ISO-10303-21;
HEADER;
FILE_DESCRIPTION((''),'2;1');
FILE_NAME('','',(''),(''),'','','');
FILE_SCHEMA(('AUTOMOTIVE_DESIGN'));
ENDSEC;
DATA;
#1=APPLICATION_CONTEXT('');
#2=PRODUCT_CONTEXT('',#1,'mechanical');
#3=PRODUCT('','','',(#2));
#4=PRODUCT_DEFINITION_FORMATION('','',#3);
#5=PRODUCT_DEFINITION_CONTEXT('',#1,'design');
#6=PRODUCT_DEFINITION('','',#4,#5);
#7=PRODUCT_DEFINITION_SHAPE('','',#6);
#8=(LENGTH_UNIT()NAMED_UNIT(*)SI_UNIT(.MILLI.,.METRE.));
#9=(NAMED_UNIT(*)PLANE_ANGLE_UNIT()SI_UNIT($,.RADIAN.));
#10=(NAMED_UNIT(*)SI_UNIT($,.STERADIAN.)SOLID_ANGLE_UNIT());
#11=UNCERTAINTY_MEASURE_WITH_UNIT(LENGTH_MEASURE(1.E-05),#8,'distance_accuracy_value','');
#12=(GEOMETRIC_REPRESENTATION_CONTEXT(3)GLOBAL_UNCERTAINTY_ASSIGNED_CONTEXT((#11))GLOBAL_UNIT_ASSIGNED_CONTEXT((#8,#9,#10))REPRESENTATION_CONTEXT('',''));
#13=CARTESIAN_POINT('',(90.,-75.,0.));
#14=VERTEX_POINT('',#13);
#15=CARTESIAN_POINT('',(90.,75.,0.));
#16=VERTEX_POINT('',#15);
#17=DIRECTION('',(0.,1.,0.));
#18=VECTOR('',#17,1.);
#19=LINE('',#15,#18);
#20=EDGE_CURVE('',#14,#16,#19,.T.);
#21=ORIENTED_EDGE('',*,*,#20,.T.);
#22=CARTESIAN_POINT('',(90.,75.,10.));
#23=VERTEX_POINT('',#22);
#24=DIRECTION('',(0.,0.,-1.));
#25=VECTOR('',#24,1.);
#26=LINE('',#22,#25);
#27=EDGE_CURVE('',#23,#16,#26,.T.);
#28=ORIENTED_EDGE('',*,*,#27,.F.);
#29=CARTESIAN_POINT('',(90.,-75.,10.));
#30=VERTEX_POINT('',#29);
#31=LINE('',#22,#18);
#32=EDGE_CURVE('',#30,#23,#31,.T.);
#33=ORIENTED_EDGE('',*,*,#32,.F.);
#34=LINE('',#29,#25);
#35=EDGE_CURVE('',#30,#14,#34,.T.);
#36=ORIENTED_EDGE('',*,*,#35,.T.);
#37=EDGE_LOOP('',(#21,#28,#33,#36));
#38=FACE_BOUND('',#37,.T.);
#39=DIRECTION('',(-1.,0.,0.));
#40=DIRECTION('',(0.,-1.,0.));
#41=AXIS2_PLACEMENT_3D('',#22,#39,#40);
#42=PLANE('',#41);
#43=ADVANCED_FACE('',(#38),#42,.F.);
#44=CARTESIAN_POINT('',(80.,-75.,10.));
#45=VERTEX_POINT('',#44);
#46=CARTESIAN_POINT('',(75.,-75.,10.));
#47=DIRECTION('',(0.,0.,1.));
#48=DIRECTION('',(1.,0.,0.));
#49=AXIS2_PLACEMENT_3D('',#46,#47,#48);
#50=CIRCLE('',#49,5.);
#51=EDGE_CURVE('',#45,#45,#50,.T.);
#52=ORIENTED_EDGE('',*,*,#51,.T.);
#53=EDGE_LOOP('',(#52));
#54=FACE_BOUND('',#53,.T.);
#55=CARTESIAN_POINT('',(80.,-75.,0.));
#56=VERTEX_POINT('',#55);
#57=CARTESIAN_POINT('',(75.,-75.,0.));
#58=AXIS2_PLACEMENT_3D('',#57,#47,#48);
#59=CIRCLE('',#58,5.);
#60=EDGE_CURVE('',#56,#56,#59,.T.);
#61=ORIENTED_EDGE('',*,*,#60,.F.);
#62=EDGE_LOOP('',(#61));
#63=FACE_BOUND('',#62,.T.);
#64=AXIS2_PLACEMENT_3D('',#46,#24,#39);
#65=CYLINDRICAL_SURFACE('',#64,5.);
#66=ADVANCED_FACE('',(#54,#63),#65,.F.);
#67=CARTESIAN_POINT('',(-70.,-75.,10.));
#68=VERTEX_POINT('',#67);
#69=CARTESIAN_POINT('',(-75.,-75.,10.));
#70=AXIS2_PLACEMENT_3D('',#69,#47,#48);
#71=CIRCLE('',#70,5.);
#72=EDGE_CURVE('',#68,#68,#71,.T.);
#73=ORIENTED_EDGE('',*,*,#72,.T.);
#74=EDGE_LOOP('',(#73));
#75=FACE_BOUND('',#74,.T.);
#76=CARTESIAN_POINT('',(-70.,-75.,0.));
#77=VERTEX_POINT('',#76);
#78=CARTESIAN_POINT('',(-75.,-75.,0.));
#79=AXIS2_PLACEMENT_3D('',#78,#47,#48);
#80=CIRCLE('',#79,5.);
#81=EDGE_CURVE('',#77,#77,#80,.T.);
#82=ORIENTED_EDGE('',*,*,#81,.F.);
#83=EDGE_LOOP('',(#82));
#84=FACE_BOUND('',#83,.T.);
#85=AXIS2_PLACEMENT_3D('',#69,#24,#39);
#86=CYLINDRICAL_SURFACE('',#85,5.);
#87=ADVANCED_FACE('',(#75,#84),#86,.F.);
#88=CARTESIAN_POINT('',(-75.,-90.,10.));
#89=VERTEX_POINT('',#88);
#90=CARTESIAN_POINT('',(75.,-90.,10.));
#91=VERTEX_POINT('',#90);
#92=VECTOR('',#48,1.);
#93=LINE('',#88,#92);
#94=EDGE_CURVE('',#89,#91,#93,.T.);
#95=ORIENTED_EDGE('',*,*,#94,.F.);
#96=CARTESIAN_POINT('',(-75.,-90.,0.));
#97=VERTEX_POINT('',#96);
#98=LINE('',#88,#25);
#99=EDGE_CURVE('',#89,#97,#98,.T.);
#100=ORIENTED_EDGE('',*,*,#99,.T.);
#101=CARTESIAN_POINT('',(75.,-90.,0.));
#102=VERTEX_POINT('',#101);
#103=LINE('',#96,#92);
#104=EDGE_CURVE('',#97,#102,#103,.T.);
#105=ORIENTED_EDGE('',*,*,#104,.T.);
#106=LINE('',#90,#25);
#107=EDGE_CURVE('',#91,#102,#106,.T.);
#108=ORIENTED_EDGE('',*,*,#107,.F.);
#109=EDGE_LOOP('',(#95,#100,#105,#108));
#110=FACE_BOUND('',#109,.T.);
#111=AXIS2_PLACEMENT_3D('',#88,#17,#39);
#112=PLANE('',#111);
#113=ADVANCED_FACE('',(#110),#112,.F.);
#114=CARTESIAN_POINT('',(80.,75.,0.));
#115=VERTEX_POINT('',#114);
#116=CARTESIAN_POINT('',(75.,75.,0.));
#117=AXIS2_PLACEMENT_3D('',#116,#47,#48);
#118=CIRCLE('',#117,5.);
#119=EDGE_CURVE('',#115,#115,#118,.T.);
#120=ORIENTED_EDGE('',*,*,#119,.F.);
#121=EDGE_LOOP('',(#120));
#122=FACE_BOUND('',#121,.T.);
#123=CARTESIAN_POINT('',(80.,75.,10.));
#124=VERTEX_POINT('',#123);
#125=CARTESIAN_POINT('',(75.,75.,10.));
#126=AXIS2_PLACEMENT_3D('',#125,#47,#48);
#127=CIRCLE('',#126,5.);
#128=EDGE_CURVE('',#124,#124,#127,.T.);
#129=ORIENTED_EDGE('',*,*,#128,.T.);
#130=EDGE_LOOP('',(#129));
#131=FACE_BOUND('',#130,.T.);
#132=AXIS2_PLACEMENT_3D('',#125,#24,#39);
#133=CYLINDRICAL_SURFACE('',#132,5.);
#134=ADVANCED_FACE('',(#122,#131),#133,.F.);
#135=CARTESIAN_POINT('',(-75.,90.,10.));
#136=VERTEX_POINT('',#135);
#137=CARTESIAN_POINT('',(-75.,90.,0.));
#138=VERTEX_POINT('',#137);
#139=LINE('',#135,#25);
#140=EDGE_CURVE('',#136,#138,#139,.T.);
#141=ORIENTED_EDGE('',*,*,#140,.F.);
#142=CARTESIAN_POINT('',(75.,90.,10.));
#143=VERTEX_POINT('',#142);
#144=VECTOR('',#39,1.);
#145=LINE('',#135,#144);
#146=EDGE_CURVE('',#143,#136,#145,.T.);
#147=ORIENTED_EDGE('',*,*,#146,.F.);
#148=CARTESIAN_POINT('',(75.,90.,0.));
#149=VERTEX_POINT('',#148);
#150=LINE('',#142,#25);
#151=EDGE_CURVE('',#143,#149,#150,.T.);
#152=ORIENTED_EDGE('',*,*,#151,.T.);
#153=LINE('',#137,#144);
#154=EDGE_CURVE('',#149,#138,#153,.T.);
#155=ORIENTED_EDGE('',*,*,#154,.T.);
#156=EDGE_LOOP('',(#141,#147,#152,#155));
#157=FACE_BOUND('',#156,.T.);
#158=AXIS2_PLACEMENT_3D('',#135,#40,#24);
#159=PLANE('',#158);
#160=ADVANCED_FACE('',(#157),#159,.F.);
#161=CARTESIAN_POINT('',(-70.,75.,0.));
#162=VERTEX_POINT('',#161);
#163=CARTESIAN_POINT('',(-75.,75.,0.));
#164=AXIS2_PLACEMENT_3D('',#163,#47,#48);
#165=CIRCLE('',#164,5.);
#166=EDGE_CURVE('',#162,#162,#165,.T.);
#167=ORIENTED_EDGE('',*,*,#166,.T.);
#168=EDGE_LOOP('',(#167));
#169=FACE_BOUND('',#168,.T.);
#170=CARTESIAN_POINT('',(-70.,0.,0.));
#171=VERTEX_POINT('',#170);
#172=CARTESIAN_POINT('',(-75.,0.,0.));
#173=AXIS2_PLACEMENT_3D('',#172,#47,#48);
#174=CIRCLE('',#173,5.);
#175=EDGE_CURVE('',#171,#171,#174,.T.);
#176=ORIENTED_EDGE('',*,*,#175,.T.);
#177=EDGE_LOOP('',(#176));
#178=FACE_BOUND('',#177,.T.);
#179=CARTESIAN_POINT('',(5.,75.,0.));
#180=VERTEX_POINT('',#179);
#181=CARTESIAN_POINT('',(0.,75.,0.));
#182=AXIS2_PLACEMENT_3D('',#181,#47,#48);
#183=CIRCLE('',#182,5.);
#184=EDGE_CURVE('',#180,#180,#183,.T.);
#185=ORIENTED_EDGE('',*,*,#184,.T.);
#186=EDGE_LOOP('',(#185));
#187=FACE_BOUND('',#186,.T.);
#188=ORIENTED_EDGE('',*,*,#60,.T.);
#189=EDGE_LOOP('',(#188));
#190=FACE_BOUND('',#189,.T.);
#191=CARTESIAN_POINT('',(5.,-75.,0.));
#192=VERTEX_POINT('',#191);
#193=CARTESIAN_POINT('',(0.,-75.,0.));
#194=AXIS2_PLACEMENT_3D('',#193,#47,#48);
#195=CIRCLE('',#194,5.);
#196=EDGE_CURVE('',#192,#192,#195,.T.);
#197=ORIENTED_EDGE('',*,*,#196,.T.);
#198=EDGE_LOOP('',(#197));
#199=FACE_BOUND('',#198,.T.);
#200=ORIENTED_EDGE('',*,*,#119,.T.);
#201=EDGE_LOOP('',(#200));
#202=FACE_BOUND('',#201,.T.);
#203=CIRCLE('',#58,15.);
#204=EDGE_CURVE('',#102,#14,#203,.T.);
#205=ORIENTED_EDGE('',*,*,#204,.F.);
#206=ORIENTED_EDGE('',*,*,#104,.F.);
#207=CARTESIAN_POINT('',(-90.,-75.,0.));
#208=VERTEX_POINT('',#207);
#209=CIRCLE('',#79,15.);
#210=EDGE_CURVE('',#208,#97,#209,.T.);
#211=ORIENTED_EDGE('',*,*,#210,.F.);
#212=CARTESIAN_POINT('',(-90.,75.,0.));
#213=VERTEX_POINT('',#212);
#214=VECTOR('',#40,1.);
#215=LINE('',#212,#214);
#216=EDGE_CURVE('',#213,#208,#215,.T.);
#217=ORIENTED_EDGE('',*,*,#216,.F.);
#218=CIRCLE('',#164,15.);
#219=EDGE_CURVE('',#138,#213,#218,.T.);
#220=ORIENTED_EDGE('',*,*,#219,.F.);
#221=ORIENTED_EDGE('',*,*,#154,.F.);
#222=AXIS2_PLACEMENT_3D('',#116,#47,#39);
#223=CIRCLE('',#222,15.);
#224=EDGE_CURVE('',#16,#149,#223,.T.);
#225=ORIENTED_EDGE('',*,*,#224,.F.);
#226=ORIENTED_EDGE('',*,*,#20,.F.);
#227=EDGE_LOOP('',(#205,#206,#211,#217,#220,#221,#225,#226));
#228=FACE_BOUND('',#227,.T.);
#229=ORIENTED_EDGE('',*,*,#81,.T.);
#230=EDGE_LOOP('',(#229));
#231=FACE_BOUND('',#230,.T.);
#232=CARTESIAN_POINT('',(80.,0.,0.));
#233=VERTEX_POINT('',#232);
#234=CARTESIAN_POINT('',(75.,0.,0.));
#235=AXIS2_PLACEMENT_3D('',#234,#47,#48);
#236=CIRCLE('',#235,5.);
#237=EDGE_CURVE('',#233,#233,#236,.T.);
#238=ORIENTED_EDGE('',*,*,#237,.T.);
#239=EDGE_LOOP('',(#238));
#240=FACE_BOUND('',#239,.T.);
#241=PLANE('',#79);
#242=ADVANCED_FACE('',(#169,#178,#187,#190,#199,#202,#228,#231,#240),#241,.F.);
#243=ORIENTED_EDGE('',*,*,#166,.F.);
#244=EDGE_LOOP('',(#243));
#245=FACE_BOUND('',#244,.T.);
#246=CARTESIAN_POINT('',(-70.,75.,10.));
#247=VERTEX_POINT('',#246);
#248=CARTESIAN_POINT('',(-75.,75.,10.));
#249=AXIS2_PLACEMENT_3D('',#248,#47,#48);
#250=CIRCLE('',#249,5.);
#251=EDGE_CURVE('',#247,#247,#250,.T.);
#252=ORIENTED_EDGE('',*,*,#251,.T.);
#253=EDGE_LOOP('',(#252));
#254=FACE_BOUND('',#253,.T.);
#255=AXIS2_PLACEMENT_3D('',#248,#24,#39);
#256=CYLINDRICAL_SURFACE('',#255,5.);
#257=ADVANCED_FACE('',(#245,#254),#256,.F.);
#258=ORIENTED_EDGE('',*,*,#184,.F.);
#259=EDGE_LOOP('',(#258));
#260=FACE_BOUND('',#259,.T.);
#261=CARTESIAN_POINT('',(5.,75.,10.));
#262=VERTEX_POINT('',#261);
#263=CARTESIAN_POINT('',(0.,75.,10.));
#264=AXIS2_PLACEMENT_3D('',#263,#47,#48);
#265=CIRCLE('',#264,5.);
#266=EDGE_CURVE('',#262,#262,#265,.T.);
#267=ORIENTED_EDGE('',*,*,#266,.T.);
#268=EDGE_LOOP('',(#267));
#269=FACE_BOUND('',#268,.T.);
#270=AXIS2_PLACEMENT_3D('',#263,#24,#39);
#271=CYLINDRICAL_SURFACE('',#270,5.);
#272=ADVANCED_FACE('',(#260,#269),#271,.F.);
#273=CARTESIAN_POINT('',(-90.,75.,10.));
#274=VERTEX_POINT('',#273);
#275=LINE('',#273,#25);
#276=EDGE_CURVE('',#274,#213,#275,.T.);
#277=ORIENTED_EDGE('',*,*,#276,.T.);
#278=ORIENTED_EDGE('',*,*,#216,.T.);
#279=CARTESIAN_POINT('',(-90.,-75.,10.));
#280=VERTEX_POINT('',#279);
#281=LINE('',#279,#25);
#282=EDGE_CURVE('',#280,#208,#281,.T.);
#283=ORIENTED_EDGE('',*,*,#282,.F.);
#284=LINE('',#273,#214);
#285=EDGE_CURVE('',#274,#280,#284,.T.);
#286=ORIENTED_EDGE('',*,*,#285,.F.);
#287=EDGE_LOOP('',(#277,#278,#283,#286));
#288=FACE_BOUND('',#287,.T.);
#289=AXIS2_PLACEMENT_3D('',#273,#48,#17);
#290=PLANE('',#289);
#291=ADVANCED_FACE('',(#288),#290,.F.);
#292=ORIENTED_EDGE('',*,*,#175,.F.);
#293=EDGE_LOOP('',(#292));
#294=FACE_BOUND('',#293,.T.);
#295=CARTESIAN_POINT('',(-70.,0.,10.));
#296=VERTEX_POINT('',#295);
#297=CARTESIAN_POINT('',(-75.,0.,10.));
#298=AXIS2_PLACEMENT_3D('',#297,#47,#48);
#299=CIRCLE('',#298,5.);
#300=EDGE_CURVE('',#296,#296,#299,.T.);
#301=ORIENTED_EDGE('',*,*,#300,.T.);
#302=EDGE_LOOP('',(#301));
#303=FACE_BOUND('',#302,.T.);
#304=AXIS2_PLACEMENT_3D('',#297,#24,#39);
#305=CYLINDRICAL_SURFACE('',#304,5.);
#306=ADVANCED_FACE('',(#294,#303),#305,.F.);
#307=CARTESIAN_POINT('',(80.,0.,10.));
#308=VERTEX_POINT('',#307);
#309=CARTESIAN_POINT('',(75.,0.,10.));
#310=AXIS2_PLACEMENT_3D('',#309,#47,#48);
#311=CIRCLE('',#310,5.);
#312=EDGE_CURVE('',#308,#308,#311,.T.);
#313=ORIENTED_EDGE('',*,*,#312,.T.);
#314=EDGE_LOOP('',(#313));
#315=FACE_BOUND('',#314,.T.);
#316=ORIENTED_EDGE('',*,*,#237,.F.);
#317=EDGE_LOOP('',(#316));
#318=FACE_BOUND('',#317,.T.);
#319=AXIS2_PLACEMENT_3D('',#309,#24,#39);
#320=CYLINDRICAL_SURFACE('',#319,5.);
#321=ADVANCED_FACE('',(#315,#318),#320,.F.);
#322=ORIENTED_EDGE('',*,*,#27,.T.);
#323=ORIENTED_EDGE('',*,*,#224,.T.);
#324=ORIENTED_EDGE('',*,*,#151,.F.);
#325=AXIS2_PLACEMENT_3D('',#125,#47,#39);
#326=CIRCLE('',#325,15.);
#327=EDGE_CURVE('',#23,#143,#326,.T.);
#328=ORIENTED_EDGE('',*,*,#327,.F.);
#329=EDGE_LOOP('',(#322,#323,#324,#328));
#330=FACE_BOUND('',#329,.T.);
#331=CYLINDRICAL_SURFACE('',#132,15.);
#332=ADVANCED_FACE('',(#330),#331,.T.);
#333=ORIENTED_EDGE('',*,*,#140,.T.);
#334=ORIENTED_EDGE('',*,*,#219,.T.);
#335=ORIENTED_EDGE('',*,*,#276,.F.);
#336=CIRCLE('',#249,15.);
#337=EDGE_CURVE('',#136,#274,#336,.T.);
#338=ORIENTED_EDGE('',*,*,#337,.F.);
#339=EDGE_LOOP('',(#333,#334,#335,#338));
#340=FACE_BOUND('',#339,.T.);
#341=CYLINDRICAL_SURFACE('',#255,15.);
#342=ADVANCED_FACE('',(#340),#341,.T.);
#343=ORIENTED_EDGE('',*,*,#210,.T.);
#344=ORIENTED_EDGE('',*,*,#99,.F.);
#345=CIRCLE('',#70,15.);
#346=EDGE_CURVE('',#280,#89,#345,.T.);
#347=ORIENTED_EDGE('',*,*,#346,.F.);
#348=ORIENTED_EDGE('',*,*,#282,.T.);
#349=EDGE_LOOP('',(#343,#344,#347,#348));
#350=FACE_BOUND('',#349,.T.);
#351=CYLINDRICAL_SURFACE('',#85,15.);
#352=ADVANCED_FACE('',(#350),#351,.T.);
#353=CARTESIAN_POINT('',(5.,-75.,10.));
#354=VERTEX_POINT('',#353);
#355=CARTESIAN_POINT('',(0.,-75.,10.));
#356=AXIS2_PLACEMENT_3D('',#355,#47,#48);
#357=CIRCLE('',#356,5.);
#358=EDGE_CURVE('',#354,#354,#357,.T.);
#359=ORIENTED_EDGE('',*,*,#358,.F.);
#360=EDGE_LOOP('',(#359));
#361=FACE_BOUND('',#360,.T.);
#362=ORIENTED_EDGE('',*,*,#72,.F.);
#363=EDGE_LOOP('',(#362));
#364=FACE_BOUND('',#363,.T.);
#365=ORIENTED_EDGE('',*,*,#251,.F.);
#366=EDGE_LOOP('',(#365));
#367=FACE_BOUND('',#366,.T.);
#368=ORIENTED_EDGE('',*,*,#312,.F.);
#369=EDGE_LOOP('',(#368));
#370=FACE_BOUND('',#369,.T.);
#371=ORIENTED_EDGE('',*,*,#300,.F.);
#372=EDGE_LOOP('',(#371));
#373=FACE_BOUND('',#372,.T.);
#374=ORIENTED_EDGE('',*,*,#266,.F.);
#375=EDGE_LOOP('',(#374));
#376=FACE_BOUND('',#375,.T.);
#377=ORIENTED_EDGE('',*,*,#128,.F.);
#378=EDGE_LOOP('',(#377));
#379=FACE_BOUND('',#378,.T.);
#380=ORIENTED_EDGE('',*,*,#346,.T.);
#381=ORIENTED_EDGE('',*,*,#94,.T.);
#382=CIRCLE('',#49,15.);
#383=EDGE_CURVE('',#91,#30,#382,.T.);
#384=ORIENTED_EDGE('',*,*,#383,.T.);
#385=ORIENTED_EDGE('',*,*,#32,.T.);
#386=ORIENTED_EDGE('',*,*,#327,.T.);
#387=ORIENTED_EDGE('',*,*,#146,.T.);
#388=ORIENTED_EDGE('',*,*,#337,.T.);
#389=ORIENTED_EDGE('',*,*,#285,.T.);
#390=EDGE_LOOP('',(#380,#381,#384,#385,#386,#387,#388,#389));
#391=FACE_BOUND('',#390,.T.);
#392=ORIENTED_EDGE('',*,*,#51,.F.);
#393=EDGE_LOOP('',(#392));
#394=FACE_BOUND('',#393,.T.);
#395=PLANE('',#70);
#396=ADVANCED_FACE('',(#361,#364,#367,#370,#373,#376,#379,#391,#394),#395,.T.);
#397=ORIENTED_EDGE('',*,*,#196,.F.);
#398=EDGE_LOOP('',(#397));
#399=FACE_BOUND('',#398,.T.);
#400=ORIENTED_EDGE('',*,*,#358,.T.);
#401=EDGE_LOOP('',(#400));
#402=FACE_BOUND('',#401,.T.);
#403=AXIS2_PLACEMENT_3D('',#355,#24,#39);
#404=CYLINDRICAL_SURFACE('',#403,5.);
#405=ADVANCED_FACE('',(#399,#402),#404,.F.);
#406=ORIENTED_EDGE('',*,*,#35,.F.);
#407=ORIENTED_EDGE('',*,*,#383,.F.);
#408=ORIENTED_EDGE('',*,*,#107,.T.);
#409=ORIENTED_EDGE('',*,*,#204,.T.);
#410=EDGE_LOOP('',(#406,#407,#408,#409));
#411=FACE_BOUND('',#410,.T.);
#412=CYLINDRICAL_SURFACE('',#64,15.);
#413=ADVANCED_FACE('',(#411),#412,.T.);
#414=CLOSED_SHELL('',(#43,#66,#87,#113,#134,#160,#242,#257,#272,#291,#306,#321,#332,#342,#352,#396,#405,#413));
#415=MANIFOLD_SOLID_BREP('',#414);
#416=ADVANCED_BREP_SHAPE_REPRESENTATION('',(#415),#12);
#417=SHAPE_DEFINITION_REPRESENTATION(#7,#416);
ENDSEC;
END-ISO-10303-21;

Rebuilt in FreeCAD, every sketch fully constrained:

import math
import FreeCAD as App
import Part
import Sketcher
from FreeCAD import Vector

doc = App.newDocument("Part")
body = doc.addObject("PartDesign::Body", "Body")

sketch1 = doc.addObject("Sketcher::SketchObject", "Sketch")
body.addObject(sketch1)
sketch1.AttachmentSupport = (doc.XY_Plane, [""])
sketch1.MapMode = "FlatFace"
sketch1.addGeometry(Part.LineSegment(Vector(75, 90, 0), Vector(-75, 90, 0)), False)
sketch1.addGeometry(Part.ArcOfCircle(Part.Circle(Vector(-75, 75, 0), Vector(0, 0, 1), 15), math.radians(90), math.radians(180)), False)
sketch1.addGeometry(Part.LineSegment(Vector(-90, 75, 0), Vector(-90, -75, 0)), False)
sketch1.addGeometry(Part.ArcOfCircle(Part.Circle(Vector(-75, -75, 0), Vector(0, 0, 1), 15), math.radians(180), math.radians(270)), False)
sketch1.addGeometry(Part.LineSegment(Vector(-75, -90, 0), Vector(75, -90, 0)), False)
sketch1.addGeometry(Part.ArcOfCircle(Part.Circle(Vector(75, -75, 0), Vector(0, 0, 1), 15), math.radians(-90), math.radians(0)), False)
sketch1.addGeometry(Part.LineSegment(Vector(90, -75, 0), Vector(90, 75, 0)), False)
sketch1.addGeometry(Part.ArcOfCircle(Part.Circle(Vector(75, 75, 0), Vector(0, 0, 1), 15), math.radians(0), math.radians(90)), False)
sketch1.addGeometry(Part.Circle(Vector(75, -75, 0), Vector(0, 0, 1), 5), False)
sketch1.addGeometry(Part.Circle(Vector(0, -75, 0), Vector(0, 0, 1), 5), False)
sketch1.addGeometry(Part.Circle(Vector(-75, -75, 0), Vector(0, 0, 1), 5), False)
sketch1.addGeometry(Part.Circle(Vector(75, 0, 0), Vector(0, 0, 1), 5), False)
sketch1.addGeometry(Part.Circle(Vector(75, 75, 0), Vector(0, 0, 1), 5), False)
sketch1.addGeometry(Part.Circle(Vector(-75, 0, 0), Vector(0, 0, 1), 5), False)
sketch1.addGeometry(Part.Circle(Vector(0, 75, 0), Vector(0, 0, 1), 5), False)
sketch1.addGeometry(Part.Circle(Vector(-75, 75, 0), Vector(0, 0, 1), 5), False)
sketch1.addConstraint(Sketcher.Constraint("Tangent", 0, 2, 1, 1))
sketch1.addConstraint(Sketcher.Constraint("Tangent", 1, 2, 2, 1))
sketch1.addConstraint(Sketcher.Constraint("Tangent", 2, 2, 3, 1))
sketch1.addConstraint(Sketcher.Constraint("Tangent", 3, 2, 4, 1))
sketch1.addConstraint(Sketcher.Constraint("Tangent", 4, 2, 5, 1))
sketch1.addConstraint(Sketcher.Constraint("Tangent", 5, 2, 6, 1))
sketch1.addConstraint(Sketcher.Constraint("Tangent", 6, 2, 7, 1))
sketch1.addConstraint(Sketcher.Constraint("Tangent", 7, 2, 0, 1))
sketch1.addConstraint(Sketcher.Constraint("Horizontal", 0))
sketch1.addConstraint(Sketcher.Constraint("Vertical", 2))
sketch1.addConstraint(Sketcher.Constraint("Horizontal", 4))
sketch1.addConstraint(Sketcher.Constraint("Vertical", 6))
sketch1.addConstraint(Sketcher.Constraint("Coincident", 8, 3, 5, 3))
sketch1.addConstraint(Sketcher.Constraint("Coincident", 10, 3, 3, 3))
sketch1.addConstraint(Sketcher.Constraint("Coincident", 12, 3, 7, 3))
sketch1.addConstraint(Sketcher.Constraint("Coincident", 15, 3, 1, 3))
sketch1.addConstraint(Sketcher.Constraint("Equal", 1, 3))
sketch1.addConstraint(Sketcher.Constraint("Equal", 3, 5))
sketch1.addConstraint(Sketcher.Constraint("Equal", 5, 7))
sketch1.addConstraint(Sketcher.Constraint("Equal", 8, 9))
sketch1.addConstraint(Sketcher.Constraint("Equal", 9, 10))
sketch1.addConstraint(Sketcher.Constraint("Equal", 10, 11))
sketch1.addConstraint(Sketcher.Constraint("Equal", 11, 12))
sketch1.addConstraint(Sketcher.Constraint("Equal", 12, 13))
sketch1.addConstraint(Sketcher.Constraint("Equal", 13, 14))
sketch1.addConstraint(Sketcher.Constraint("Equal", 14, 15))
sketch1.addConstraint(Sketcher.Constraint("Symmetric", 1, 3, 5, 3, -1, 1))
sketch1.addConstraint(Sketcher.Constraint("Symmetric", 11, 3, 13, 3, -1, 1))
sketch1.addConstraint(Sketcher.Constraint("Symmetric", 9, 3, 14, 3, -1, 1))
sketch1.addConstraint(Sketcher.Constraint("PointOnObject", 9, 3, -2))
sketch1.addConstraint(Sketcher.Constraint("PointOnObject", 11, 3, -1))
sketch1.addConstraint(Sketcher.Constraint("Horizontal", 8, 3, 9, 3))
sketch1.addConstraint(Sketcher.Constraint("Vertical", 8, 3, 11, 3))
sketch1.addConstraint(Sketcher.Constraint("Equal", 4, 2))
sketch1.addConstraint(Sketcher.Constraint("Diameter", 8, 10.0))
sketch1.addConstraint(Sketcher.Constraint("Radius", 1, 15.0))
sketch1.addConstraint(Sketcher.Constraint("DistanceX", 0, 2, 0, 1, 150.0))
pad1 = doc.addObject("PartDesign::Pad", "Pad")
body.addObject(pad1)
pad1.Profile = sketch1
pad1.Length = 10

doc.recompute()
